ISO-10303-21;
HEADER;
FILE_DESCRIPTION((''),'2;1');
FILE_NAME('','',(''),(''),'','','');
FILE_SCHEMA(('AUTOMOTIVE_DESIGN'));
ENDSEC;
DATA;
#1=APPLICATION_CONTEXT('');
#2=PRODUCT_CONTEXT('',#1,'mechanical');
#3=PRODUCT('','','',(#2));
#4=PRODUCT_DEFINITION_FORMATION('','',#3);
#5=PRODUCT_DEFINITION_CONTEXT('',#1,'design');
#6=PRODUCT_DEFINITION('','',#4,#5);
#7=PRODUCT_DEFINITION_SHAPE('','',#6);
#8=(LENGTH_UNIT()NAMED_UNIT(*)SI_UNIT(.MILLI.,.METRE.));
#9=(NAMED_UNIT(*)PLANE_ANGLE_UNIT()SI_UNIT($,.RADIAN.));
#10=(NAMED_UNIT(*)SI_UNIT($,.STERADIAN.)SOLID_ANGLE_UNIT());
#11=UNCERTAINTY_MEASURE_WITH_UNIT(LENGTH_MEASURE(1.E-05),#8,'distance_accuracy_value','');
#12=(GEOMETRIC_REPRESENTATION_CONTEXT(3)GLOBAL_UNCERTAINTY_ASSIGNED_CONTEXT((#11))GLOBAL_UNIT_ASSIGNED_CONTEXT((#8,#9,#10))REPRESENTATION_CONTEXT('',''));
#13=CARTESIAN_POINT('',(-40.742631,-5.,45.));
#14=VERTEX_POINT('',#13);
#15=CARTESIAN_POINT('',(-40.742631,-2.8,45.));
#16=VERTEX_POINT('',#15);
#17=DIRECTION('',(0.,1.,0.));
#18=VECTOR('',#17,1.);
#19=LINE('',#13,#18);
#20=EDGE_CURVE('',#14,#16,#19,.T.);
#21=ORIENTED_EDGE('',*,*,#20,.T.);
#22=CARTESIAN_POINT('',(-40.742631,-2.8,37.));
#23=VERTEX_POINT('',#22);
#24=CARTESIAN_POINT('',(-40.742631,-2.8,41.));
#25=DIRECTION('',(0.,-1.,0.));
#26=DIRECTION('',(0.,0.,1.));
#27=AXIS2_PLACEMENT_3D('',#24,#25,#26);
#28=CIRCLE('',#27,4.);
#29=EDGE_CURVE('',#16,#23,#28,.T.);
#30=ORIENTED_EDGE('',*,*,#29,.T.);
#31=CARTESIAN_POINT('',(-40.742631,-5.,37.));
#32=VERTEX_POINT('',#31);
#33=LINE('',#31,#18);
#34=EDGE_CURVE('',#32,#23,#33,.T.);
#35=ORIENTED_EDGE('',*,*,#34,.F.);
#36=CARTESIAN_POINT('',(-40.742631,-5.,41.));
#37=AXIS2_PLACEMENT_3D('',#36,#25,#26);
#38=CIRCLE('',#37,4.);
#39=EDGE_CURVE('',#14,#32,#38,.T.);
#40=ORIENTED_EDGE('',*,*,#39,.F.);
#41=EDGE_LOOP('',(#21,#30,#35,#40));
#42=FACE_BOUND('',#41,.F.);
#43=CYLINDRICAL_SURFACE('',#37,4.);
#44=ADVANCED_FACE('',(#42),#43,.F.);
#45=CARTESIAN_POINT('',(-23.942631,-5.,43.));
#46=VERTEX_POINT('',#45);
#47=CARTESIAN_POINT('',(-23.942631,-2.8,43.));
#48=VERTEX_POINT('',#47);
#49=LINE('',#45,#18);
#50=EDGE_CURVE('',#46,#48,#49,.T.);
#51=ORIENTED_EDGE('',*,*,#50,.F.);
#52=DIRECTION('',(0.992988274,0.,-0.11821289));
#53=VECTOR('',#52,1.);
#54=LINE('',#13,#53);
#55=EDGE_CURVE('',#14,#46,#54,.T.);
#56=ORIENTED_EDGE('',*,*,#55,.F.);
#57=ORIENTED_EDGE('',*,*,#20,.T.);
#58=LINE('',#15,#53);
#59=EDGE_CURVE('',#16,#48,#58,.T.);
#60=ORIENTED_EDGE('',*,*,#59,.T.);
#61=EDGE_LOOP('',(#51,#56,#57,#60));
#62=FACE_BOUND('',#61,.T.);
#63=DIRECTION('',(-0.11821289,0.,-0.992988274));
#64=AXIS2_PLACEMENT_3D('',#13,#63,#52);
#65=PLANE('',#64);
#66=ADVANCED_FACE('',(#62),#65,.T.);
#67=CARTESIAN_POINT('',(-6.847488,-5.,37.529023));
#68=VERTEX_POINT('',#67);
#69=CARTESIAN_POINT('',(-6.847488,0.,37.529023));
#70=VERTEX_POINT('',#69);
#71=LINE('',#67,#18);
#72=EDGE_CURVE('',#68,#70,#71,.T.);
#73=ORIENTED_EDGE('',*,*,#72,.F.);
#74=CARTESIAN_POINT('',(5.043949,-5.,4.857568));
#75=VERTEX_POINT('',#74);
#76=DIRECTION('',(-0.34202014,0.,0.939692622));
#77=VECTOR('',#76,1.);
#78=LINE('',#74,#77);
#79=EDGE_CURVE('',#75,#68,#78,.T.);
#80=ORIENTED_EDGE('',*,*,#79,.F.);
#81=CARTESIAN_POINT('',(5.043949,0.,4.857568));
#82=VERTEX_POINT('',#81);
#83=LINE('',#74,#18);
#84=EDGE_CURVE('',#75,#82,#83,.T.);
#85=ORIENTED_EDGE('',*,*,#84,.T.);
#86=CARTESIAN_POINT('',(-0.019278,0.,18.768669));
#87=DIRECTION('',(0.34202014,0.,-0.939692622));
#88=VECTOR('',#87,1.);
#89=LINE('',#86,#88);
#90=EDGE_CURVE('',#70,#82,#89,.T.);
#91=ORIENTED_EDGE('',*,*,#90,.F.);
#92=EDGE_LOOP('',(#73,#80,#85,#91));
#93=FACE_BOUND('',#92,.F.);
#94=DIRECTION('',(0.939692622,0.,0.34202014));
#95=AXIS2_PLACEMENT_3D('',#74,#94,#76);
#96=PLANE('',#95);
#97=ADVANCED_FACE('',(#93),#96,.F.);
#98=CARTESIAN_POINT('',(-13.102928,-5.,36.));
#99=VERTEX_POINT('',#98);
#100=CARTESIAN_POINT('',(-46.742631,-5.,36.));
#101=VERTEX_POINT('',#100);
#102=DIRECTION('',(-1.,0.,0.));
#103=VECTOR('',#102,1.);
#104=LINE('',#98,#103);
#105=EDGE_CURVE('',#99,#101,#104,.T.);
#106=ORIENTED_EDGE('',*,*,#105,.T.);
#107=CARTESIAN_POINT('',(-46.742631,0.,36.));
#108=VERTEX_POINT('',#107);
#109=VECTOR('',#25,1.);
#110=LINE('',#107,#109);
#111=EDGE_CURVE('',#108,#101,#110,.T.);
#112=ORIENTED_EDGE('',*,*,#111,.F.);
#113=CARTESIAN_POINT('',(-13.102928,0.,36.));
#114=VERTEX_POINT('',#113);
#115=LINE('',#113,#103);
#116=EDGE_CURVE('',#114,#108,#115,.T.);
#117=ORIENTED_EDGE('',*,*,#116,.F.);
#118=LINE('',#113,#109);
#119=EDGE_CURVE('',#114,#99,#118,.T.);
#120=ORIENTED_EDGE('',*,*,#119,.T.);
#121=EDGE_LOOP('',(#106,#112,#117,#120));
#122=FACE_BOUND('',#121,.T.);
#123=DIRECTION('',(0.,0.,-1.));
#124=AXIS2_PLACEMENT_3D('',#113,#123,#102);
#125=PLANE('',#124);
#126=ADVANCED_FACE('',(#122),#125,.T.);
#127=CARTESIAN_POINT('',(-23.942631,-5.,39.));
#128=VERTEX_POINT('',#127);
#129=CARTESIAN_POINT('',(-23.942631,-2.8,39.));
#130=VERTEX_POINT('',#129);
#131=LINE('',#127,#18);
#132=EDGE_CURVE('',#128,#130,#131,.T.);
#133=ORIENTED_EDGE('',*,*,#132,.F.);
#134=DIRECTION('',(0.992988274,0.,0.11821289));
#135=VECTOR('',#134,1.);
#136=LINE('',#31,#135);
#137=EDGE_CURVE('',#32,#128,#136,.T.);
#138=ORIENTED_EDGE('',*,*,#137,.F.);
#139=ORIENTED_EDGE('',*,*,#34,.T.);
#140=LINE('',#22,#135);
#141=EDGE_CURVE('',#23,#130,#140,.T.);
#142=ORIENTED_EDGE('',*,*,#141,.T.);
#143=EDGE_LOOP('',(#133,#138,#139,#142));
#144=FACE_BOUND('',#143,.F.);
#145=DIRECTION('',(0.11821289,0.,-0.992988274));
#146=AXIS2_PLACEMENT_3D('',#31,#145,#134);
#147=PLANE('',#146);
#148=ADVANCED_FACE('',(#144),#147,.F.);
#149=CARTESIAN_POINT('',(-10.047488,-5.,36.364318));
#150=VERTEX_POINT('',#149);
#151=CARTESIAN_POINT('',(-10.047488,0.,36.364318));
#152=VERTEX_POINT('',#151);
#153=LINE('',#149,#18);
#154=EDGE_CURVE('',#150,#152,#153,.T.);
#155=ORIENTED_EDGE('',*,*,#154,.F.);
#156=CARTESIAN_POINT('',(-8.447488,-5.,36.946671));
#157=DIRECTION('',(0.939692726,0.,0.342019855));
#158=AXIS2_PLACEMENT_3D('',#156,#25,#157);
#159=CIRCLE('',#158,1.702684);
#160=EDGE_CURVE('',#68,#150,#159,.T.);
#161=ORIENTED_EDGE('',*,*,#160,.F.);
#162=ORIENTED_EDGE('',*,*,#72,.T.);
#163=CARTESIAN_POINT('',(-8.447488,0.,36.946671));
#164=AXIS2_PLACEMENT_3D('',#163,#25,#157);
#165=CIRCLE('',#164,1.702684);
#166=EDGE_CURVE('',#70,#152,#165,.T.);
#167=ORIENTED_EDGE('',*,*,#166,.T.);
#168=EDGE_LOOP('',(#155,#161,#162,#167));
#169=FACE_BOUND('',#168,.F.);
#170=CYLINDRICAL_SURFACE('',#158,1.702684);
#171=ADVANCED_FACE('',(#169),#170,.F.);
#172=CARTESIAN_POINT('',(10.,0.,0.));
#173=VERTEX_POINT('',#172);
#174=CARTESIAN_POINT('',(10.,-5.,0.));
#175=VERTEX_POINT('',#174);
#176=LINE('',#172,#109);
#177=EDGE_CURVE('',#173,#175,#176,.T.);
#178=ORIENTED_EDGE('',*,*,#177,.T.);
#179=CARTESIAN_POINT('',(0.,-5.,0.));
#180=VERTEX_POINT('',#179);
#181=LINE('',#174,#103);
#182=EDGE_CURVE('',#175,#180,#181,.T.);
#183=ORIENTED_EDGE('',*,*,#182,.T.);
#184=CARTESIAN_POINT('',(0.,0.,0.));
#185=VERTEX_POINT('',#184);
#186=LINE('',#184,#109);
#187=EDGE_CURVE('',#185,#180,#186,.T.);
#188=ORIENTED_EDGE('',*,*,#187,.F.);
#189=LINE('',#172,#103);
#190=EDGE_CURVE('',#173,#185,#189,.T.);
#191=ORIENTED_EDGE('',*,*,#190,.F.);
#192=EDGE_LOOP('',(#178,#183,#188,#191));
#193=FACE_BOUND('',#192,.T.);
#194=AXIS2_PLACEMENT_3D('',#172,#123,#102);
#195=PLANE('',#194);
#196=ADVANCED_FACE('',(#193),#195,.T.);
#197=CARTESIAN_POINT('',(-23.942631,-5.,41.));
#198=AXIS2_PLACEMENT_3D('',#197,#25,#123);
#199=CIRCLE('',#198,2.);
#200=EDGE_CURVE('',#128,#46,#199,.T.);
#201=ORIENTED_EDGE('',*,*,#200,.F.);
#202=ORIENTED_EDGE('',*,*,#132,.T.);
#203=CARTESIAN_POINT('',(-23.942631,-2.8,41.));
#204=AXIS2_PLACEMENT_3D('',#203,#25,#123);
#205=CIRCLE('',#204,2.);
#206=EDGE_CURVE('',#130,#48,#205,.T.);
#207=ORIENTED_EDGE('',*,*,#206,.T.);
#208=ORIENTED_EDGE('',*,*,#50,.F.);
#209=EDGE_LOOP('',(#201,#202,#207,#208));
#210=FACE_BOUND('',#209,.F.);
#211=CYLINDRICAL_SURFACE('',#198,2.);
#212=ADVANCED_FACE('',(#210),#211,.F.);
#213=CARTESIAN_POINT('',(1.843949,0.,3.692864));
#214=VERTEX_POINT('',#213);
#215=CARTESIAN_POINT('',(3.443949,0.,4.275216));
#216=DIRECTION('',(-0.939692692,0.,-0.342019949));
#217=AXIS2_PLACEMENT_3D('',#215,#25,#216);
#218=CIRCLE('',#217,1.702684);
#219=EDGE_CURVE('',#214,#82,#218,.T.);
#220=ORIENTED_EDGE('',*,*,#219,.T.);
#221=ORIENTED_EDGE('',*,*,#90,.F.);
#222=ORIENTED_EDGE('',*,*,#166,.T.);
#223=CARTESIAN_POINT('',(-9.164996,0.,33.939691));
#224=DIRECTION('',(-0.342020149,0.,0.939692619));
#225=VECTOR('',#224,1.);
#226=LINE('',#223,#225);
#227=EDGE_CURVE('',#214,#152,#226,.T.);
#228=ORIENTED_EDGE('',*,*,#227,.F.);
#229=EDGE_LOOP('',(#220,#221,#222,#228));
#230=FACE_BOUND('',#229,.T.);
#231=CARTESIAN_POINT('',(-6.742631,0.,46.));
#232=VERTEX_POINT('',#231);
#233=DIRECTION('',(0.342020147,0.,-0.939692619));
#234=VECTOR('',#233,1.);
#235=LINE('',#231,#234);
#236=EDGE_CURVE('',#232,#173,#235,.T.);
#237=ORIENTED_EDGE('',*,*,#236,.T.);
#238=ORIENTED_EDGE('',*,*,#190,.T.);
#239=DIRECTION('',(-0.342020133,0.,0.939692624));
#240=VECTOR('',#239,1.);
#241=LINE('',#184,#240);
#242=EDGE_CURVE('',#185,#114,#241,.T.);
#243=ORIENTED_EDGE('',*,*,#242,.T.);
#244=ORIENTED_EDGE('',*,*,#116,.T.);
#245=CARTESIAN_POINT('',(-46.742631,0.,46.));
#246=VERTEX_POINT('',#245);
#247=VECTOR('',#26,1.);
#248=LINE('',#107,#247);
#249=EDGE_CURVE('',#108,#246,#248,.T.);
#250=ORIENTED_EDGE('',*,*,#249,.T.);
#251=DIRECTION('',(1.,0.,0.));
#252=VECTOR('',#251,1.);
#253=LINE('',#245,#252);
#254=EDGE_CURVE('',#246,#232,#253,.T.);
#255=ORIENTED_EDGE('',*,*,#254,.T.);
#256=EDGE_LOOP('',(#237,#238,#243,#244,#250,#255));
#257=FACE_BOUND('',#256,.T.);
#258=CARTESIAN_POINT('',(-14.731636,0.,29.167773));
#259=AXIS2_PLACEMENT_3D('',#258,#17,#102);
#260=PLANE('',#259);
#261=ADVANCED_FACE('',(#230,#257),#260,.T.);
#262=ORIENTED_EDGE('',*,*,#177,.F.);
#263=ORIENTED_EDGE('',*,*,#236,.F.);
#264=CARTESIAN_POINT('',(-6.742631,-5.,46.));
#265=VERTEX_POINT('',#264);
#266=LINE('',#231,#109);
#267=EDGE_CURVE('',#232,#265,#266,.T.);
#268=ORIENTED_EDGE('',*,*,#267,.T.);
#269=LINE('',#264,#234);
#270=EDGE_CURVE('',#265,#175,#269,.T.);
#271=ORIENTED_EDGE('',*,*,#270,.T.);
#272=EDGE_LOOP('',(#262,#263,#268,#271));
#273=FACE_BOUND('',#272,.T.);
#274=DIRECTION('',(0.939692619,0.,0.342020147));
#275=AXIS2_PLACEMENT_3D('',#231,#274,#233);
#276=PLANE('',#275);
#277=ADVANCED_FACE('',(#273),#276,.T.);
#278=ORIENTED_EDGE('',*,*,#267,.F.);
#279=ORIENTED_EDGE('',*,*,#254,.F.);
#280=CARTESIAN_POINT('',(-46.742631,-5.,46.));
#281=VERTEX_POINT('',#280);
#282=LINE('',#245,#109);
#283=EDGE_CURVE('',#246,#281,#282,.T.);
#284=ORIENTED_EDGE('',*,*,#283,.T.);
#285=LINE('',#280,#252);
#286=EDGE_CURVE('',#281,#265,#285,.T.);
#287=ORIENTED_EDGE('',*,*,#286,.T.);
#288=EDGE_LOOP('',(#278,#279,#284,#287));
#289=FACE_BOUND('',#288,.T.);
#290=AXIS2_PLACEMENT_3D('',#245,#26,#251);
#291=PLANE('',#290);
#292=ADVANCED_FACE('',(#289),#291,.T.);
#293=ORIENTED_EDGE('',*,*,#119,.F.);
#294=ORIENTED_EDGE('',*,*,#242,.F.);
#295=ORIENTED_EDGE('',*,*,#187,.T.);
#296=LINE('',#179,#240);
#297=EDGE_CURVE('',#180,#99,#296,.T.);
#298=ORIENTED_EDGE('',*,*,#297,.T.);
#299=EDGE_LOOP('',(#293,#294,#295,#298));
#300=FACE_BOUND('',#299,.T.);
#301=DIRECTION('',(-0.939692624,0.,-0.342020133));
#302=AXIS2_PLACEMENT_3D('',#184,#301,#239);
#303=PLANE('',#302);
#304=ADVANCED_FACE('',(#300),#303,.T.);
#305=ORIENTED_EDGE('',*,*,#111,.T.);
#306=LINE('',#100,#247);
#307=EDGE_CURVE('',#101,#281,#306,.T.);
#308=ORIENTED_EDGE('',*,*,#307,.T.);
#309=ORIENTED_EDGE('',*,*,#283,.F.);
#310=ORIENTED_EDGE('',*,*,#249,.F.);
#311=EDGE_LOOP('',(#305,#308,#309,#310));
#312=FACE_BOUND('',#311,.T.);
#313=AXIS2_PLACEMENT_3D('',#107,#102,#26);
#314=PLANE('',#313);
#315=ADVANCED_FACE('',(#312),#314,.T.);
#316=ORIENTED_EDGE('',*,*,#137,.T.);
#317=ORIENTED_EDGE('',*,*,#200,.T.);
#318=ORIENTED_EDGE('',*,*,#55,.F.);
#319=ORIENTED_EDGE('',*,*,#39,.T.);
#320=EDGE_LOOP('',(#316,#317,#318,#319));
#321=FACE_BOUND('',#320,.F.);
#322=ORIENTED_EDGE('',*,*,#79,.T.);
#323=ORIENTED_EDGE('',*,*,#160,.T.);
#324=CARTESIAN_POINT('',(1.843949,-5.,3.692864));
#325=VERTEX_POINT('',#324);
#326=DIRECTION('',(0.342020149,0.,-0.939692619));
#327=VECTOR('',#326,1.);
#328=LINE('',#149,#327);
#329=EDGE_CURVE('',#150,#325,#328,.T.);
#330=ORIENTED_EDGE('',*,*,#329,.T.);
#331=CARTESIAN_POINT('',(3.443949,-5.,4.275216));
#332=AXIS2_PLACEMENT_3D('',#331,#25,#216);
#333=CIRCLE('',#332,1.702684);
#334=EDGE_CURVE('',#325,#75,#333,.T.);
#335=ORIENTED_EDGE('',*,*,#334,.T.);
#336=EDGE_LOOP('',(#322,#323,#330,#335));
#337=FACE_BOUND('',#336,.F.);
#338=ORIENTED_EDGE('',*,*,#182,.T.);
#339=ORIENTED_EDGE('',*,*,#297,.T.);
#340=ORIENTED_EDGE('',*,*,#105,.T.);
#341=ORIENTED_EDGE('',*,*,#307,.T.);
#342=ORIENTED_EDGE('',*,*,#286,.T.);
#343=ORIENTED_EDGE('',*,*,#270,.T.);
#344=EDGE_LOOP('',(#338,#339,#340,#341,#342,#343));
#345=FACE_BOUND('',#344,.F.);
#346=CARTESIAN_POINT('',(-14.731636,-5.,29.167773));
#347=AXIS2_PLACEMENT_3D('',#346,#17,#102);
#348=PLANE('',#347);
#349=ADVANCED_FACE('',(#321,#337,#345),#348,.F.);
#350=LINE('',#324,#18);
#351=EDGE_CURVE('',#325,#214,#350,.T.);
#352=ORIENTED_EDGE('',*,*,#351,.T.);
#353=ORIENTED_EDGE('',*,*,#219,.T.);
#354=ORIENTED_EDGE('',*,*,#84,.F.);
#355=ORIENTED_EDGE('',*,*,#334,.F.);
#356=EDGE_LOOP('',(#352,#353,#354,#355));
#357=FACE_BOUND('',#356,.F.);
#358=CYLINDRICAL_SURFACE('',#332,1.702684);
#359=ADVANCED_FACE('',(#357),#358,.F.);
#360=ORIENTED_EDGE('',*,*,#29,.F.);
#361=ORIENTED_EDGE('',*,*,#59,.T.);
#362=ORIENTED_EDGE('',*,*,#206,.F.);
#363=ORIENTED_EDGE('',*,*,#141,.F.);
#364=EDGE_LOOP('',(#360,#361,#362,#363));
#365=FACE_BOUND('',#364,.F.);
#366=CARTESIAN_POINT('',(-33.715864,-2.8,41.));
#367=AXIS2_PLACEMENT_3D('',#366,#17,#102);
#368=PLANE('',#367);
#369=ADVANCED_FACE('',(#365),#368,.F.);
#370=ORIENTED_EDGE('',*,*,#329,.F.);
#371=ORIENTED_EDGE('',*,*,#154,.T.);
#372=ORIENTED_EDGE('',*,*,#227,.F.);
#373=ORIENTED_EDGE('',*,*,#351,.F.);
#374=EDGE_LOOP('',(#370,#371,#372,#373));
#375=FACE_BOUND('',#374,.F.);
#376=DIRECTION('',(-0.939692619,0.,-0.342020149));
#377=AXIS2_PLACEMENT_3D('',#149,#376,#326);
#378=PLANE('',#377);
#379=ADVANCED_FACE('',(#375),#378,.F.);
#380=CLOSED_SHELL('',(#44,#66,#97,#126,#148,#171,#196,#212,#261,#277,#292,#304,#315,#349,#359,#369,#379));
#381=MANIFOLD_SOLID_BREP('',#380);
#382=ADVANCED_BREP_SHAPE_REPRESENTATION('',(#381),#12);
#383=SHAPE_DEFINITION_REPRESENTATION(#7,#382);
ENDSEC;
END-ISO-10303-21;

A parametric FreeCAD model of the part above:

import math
import FreeCAD as App
import Part
import Sketcher
from FreeCAD import Vector
Q = App.Units.Quantity

doc = App.newDocument("Part")
body = doc.addObject("PartDesign::Body", "Body")

sketch1 = body.newObject("Sketcher::SketchObject", "Sketch")
sketch1.AttachmentSupport = (doc.getObject("XZ_Plane"), [""])
sketch1.MapMode = "FlatFace"
sketch1.addGeometry(Part.LineSegment(Vector(-13, 36, 0), Vector(0, 0, 0)), False)
sketch1.addGeometry(Part.LineSegment(Vector(0, 0, 0), Vector(10, 0, 0)), False)
sketch1.addGeometry(Part.LineSegment(Vector(10, 0, 0), Vector(-7, 46, 0)), False)
sketch1.addGeometry(Part.LineSegment(Vector(-7, 46, 0), Vector(-47, 46, 0)), False)
sketch1.addGeometry(Part.LineSegment(Vector(-47, 46, 0), Vector(-47, 36, 0)), False)
sketch1.addGeometry(Part.LineSegment(Vector(-47, 36, 0), Vector(-13, 36, 0)), False)
sketch1.addConstraint(Sketcher.Constraint("Coincident", 0, 2, 1, 1))
sketch1.addConstraint(Sketcher.Constraint("Coincident", 1, 2, 2, 1))
sketch1.addConstraint(Sketcher.Constraint("Coincident", 2, 2, 3, 1))
sketch1.addConstraint(Sketcher.Constraint("Coincident", 3, 2, 4, 1))
sketch1.addConstraint(Sketcher.Constraint("Coincident", 4, 2, 5, 1))
sketch1.addConstraint(Sketcher.Constraint("Coincident", 5, 2, 0, 1))
sketch1.addConstraint(Sketcher.Constraint("Horizontal", 1))
sketch1.addConstraint(Sketcher.Constraint("Horizontal", 3))
sketch1.addConstraint(Sketcher.Constraint("Vertical", 4))
sketch1.addConstraint(Sketcher.Constraint("Horizontal", 5))
sketch1.addConstraint(Sketcher.Constraint("Coincident", 0, 2, -1, 1))
sketch1.addConstraint(Sketcher.Constraint("Parallel", 0, 2))
sketch1.addConstraint(Sketcher.Constraint("Equal", 1, 4))
sketch1.addConstraint(Sketcher.Constraint("DistanceX", 1, 1, 1, 2, 10.0))
sketch1.addConstraint(Sketcher.Constraint("DistanceX", 3, 2, 3, 1, 40.0))
sketch1.addConstraint(Sketcher.Constraint("Angle", 0, Q("-70.000001 deg")))
sketch1.addConstraint(Sketcher.Constraint("DistanceY", -1, 1, 2, 2, 46.0))
pad1 = body.newObject("PartDesign::Pad", "Pad")
pad1.Profile = sketch1
pad1.Length = 5

sketch2 = body.newObject("Sketcher::SketchObject", "Sketch001")
sketch2.AttachmentSupport = (doc.getObject("XZ_Plane"), [""])
sketch2.MapMode = "FlatFace"
sketch2.AttachmentOffset = App.Placement(Vector(0, 0, 5), App.Rotation())
sketch2.addGeometry(Part.ArcOfCircle(Part.Circle(Vector(-8.4, 36.9, 0), Vector(0, 0, 1), 1.7), math.radians(20), math.radians(200)), False)
sketch2.addGeometry(Part.LineSegment(Vector(-10, 36.4, 0), Vector(1.8, 3.7, 0)), False)
sketch2.addGeometry(Part.ArcOfCircle(Part.Circle(Vector(3.4, 4.3, 0), Vector(0, 0, 1), 1.7), math.radians(-160), math.radians(20)), False)
sketch2.addGeometry(Part.LineSegment(Vector(5, 4.9, 0), Vector(-6.8, 37.5, 0)), False)
sketch2.addConstraint(Sketcher.Constraint("Tangent", 0, 2, 1, 1))
sketch2.addConstraint(Sketcher.Constraint("Tangent", 1, 2, 2, 1))
sketch2.addConstraint(Sketcher.Constraint("Tangent", 2, 2, 3, 1))
sketch2.addConstraint(Sketcher.Constraint("Tangent", 3, 2, 0, 1))
sketch2.addConstraint(Sketcher.Constraint("Equal", 0, 2))
sketch2.addConstraint(Sketcher.Constraint("Angle", 1, Q("-70 deg")))
sketch2.addConstraint(Sketcher.Constraint("DistanceX", 0, 2, 0, 3, 1.6))
sketch2.addConstraint(Sketcher.Constraint("DistanceY", 2, 3, 0, 2, 32.089102))
sketch2.addConstraint(Sketcher.Constraint("DistanceX", 0, 3, -1, 1, 8.447488))
sketch2.addConstraint(Sketcher.Constraint("DistanceY", -1, 1, 0, 3, 36.946671))
pocket1 = body.newObject("PartDesign::Pocket", "Pocket")
pocket1.Profile = sketch2
pocket1.Type = "ThroughAll"

sketch3 = body.newObject("Sketcher::SketchObject", "Sketch002")
sketch3.AttachmentSupport = (doc.getObject("XZ_Plane"), [""])
sketch3.MapMode = "FlatFace"
sketch3.AttachmentOffset = App.Placement(Vector(0, 0, 5), App.Rotation())
sketch3.addGeometry(Part.LineSegment(Vector(-23.9, 43, 0), Vector(-40.7, 45, 0)), False)
sketch3.addGeometry(Part.ArcOfCircle(Part.Circle(Vector(-40.7, 41, 0), Vector(0, 0, 1), 4), math.radians(90), math.radians(270)), False)
sketch3.addGeometry(Part.LineSegment(Vector(-40.7, 37, 0), Vector(-23.9, 39, 0)), False)
sketch3.addGeometry(Part.ArcOfCircle(Part.Circle(Vector(-23.9, 41, 0), Vector(0, 0, 1), 2), math.radians(-90), math.radians(90)), False)
sketch3.addConstraint(Sketcher.Constraint("Coincident", 0, 2, 1, 1))
sketch3.addConstraint(Sketcher.Constraint("Coincident", 1, 2, 2, 1))
sketch3.addConstraint(Sketcher.Constraint("Coincident", 2, 2, 3, 1))
sketch3.addConstraint(Sketcher.Constraint("Coincident", 3, 2, 0, 1))
sketch3.addConstraint(Sketcher.Constraint("Horizontal", 1, 3, 3, 3))
sketch3.addConstraint(Sketcher.Constraint("Vertical", 1, 3, 0, 2))
sketch3.addConstraint(Sketcher.Constraint("Vertical", 0, 2, 1, 2))
sketch3.addConstraint(Sketcher.Constraint("Vertical", 3, 3, 2, 2))
sketch3.addConstraint(Sketcher.Constraint("Vertical", 2, 2, 3, 2))
sketch3.addConstraint(Sketcher.Constraint("Radius", 1, 4.0))
sketch3.addConstraint(Sketcher.Constraint("Radius", 3, 2.0))
sketch3.addConstraint(Sketcher.Constraint("DistanceY", -1, 1, 1, 3, 41.0))
sketch3.addConstraint(Sketcher.Constraint("DistanceX", 1, 3, 3, 3, 16.8))
sketch3.addConstraint(Sketcher.Constraint("DistanceX", 1, 3, -1, 1, 40.742631))
pocket2 = body.newObject("PartDesign::Pocket", "Pocket001")
pocket2.Profile = sketch3
pocket2.Length = 2.2

doc.recompute()
